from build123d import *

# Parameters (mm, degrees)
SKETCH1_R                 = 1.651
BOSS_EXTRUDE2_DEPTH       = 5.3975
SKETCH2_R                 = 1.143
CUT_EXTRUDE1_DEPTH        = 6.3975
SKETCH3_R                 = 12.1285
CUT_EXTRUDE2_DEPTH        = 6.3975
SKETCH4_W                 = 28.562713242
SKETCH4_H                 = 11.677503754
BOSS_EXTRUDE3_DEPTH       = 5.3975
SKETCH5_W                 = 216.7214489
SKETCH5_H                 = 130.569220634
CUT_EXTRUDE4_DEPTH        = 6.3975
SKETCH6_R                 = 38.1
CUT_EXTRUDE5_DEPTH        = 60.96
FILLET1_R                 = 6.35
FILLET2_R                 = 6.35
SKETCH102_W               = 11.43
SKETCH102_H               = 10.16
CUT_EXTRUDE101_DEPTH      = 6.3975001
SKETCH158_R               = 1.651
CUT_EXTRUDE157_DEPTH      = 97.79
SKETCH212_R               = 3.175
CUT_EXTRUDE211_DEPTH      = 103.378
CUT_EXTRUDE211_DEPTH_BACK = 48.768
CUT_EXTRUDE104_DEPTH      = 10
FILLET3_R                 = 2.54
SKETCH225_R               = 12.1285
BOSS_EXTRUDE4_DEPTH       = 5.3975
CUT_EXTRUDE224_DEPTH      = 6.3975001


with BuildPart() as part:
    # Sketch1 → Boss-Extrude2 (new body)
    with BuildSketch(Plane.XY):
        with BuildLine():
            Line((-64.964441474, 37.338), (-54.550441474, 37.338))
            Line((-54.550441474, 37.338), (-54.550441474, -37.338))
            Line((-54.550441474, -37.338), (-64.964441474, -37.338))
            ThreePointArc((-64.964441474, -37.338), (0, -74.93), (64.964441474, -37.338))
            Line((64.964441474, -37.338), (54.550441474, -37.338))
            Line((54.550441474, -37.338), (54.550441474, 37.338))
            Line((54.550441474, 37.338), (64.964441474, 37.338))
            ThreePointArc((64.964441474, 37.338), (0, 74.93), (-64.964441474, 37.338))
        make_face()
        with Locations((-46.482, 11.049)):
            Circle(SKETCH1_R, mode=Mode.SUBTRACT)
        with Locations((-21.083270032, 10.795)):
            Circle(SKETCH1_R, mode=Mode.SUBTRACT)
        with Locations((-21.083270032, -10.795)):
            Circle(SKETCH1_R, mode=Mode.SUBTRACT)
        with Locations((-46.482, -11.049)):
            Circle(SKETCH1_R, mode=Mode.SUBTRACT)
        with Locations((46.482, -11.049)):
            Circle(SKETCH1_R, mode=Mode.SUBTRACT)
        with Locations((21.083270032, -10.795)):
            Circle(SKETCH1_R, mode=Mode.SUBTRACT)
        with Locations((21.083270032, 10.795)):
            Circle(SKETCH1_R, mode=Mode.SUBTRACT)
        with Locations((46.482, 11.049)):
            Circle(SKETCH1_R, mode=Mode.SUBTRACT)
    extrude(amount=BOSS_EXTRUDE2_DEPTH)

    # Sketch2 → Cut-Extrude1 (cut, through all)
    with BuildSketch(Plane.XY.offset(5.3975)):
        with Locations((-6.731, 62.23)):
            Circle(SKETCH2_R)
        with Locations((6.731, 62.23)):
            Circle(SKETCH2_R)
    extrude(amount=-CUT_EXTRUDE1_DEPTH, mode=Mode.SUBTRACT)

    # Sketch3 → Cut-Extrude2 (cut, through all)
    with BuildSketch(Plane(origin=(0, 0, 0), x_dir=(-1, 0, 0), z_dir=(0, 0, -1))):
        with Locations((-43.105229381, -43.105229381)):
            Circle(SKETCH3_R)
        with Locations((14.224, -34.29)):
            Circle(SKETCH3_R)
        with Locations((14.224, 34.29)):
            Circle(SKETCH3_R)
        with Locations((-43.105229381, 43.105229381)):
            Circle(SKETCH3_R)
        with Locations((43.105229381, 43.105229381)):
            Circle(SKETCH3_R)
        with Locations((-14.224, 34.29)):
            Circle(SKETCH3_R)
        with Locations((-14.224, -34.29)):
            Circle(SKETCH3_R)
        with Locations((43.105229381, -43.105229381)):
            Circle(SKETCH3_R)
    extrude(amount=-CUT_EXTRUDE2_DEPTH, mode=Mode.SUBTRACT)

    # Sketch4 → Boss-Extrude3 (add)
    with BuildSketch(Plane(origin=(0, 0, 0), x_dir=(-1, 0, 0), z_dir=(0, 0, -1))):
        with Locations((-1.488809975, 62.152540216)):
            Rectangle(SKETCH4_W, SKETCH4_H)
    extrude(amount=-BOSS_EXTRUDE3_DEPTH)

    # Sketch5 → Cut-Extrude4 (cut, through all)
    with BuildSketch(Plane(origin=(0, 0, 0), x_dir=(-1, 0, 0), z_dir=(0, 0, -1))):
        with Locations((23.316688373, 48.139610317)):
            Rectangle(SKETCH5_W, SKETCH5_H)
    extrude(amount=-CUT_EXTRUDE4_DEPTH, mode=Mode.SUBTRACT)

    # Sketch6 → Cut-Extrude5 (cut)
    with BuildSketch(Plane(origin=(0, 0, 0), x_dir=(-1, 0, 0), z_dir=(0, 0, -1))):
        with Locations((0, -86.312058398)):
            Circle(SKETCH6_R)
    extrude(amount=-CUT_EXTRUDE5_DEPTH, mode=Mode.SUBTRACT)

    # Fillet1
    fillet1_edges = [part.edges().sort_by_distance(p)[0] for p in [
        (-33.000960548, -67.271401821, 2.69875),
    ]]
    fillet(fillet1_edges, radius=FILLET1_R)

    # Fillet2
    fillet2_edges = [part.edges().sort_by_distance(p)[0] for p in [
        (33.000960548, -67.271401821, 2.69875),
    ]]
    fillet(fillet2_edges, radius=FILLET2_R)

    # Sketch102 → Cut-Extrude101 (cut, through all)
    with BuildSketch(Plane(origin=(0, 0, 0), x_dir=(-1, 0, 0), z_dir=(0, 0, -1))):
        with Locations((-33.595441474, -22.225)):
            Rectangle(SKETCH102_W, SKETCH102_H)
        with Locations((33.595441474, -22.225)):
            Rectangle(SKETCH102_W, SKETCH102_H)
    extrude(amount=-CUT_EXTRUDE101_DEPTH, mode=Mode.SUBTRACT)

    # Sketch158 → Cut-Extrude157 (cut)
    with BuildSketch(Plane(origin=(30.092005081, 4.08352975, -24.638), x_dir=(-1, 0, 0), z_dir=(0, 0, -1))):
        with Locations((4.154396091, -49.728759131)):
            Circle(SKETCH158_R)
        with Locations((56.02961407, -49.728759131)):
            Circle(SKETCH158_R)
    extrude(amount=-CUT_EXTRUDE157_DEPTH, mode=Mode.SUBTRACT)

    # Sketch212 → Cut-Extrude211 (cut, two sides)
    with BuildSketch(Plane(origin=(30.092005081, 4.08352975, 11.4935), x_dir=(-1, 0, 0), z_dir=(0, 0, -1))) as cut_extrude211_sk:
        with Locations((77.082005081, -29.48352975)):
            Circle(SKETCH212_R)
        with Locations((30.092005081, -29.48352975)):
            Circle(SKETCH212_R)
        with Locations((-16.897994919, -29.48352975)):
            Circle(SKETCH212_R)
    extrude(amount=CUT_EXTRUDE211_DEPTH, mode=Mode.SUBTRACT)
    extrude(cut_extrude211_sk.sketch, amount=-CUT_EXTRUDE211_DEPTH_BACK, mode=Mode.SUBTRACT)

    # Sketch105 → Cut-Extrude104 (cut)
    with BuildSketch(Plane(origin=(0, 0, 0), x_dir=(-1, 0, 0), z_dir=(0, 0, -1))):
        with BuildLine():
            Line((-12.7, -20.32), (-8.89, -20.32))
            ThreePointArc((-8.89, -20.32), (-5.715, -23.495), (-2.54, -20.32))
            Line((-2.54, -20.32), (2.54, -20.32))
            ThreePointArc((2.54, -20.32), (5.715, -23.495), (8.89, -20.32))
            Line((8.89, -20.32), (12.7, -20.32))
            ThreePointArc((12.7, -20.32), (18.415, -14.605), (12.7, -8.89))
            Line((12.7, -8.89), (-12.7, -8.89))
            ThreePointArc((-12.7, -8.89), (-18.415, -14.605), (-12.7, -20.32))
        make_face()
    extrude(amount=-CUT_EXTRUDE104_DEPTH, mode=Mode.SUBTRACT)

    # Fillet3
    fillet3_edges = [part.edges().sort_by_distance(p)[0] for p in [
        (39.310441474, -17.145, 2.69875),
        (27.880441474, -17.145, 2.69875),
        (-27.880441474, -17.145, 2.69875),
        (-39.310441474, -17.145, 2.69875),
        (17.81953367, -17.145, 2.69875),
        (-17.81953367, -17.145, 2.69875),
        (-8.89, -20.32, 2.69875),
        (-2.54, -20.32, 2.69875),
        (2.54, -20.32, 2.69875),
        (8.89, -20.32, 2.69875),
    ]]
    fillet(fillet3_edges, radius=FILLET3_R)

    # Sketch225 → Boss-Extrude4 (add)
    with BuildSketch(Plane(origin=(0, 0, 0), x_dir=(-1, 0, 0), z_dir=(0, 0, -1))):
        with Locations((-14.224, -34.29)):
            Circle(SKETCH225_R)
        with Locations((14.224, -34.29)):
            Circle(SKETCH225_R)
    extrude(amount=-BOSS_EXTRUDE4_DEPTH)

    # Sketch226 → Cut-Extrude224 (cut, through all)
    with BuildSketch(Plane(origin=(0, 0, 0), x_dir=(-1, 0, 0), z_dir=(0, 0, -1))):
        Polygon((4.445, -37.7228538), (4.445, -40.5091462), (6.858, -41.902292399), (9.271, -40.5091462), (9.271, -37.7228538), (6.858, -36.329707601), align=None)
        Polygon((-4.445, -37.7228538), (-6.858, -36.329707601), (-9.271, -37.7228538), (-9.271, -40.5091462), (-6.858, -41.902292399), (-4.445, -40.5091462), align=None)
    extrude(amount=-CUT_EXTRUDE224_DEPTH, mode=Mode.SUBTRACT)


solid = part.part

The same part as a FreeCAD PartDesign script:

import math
import FreeCAD as App
import Part
import Sketcher
Q = App.Units.Quantity


def edges_at(feature, points):
    """Names of the edges that pass closest to the given points."""
    edges = feature.Shape.Edges
    near = lambda p: min(range(len(edges)), key=lambda i: edges[i].distToShape(Part.Vertex(*p))[0])
    return sorted({f"Edge{near(p) + 1}" for p in points})


def add_polygon(sketch, points):
    """Adds a closed chain of lines whose ends are joined by coincident constraints."""
    first, n = sketch.GeometryCount, len(points)
    for a, b in zip(points, points[1:] + points[:1]):
        sketch.addGeometry(Part.LineSegment(App.Vector(*a, 0), App.Vector(*b, 0)), False)
    for i in range(n):
        sketch.addConstraint(Sketcher.Constraint("Coincident", first + i, 2, first + (i + 1) % n, 1))

doc = App.newDocument("Part")
body = doc.addObject("PartDesign::Body", "Body")

# Sketch on XY plane
sketch1 = body.newObject("Sketcher::SketchObject", "Sketch")
sketch1.AttachmentSupport = (doc.getObject("XY_Plane"), [""])
sketch1.MapMode = "FlatFace"
sketch1.addGeometry(Part.LineSegment(App.Vector(-65, 37.3, 0), App.Vector(-54.6, 37.3, 0)), False)
sketch1.addGeometry(Part.LineSegment(App.Vector(-54.6, 37.3, 0), App.Vector(-54.6, -37.3, 0)), False)
sketch1.addGeometry(Part.LineSegment(App.Vector(-54.6, -37.3, 0), App.Vector(-65, -37.3, 0)), False)
sketch1.addGeometry(Part.ArcOfCircle(Part.Circle(App.Vector(0, 0, 0), App.Vector(0, 0, 1), 74.9), math.radians(-150), math.radians(-30)), False)
sketch1.addGeometry(Part.LineSegment(App.Vector(65, -37.3, 0), App.Vector(54.6, -37.3, 0)), False)
sketch1.addGeometry(Part.LineSegment(App.Vector(54.6, -37.3, 0), App.Vector(54.6, 37.3, 0)), False)
sketch1.addGeometry(Part.LineSegment(App.Vector(54.6, 37.3, 0), App.Vector(65, 37.3, 0)), False)
sketch1.addGeometry(Part.ArcOfCircle(Part.Circle(App.Vector(0, 0, 0), App.Vector(0, 0, 1), 74.9), math.radians(30), math.radians(150)), False)
sketch1.addGeometry(Part.Circle(App.Vector(-46.5, -11, 0), App.Vector(0, 0, 1), 1.7), False)
sketch1.addGeometry(Part.Circle(App.Vector(-21.1, -10.8, 0), App.Vector(0, 0, 1), 1.7), False)
sketch1.addGeometry(Part.Circle(App.Vector(21.1, -10.8, 0), App.Vector(0, 0, 1), 1.7), False)
sketch1.addGeometry(Part.Circle(App.Vector(46.5, -11, 0), App.Vector(0, 0, 1), 1.7), False)
sketch1.addGeometry(Part.Circle(App.Vector(-46.5, 11, 0), App.Vector(0, 0, 1), 1.7), False)
sketch1.addGeometry(Part.Circle(App.Vector(-21.1, 10.8, 0), App.Vector(0, 0, 1), 1.7), False)
sketch1.addGeometry(Part.Circle(App.Vector(21.1, 10.8, 0), App.Vector(0, 0, 1), 1.7), False)
sketch1.addGeometry(Part.Circle(App.Vector(46.5, 11, 0), App.Vector(0, 0, 1), 1.7), False)
sketch1.addConstraint(Sketcher.Constraint("Coincident", 0, 2, 1, 1))
sketch1.addConstraint(Sketcher.Constraint("Coincident", 1, 2, 2, 1))
sketch1.addConstraint(Sketcher.Constraint("Coincident", 2, 2, 3, 1))
sketch1.addConstraint(Sketcher.Constraint("Coincident", 3, 2, 4, 1))
sketch1.addConstraint(Sketcher.Constraint("Coincident", 4, 2, 5, 1))
sketch1.addConstraint(Sketcher.Constraint("Coincident", 5, 2, 6, 1))
sketch1.addConstraint(Sketcher.Constraint("Coincident", 6, 2, 7, 1))
sketch1.addConstraint(Sketcher.Constraint("Coincident", 7, 2, 0, 1))
sketch1.addConstraint(Sketcher.Constraint("Horizontal", 0))
sketch1.addConstraint(Sketcher.Constraint("Vertical", 1))
sketch1.addConstraint(Sketcher.Constraint("Horizontal", 2))
sketch1.addConstraint(Sketcher.Constraint("Horizontal", 4))
sketch1.addConstraint(Sketcher.Constraint("Vertical", 5))
sketch1.addConstraint(Sketcher.Constraint("Horizontal", 6))
sketch1.addConstraint(Sketcher.Constraint("Coincident", 3, 3, -1, 1))
sketch1.addConstraint(Sketcher.Constraint("Coincident", 7, 3, -1, 1))
sketch1.addConstraint(Sketcher.Constraint("Equal", 3, 7))
sketch1.addConstraint(Sketcher.Constraint("Equal", 8, 9))
sketch1.addConstraint(Sketcher.Constraint("Equal", 9, 10))
sketch1.addConstraint(Sketcher.Constraint("Equal", 10, 11))
sketch1.addConstraint(Sketcher.Constraint("Equal", 11, 12))
sketch1.addConstraint(Sketcher.Constraint("Equal", 12, 13))
sketch1.addConstraint(Sketcher.Constraint("Equal", 13, 14))
sketch1.addConstraint(Sketcher.Constraint("Equal", 14, 15))
sketch1.addConstraint(Sketcher.Constraint("Symmetric", 11, 3, 12, 3, -1, 1))
sketch1.addConstraint(Sketcher.Constraint("Symmetric", 10, 3, 13, 3, -1, 1))
sketch1.addConstraint(Sketcher.Constraint("Symmetric", 9, 3, 14, 3, -1, 1))
sketch1.addConstraint(Sketcher.Constraint("Symmetric", 8, 3, 15, 3, -1, 1))
sketch1.addConstraint(Sketcher.Constraint("Symmetric", 0, 2, 4, 2, -1, 1))
sketch1.addConstraint(Sketcher.Constraint("Symmetric", 9, 3, 10, 3, -2))
sketch1.addConstraint(Sketcher.Constraint("Symmetric", 8, 3, 11, 3, -2))
sketch1.addConstraint(Sketcher.Constraint("Horizontal", 2, 2, 3, 2))
sketch1.addConstraint(Sketcher.Constraint("Horizontal", 0, 2, 5, 2))
sketch1.addConstraint(Sketcher.Constraint("Diameter", 8, Q("0.13 in")))
sketch1.addConstraint(Sketcher.Constraint("Radius", 3, Q("2.95 in")))
sketch1.addConstraint(Sketcher.Constraint("DistanceX", 0, 1, 0, 2, Q("0.41 in")))
sketch1.addConstraint(Sketcher.Constraint("DistanceY", 1, 2, 1, 1, Q("2.94 in")))
sketch1.addConstraint(Sketcher.Constraint("DistanceX", 8, 3, -1, 1, Q("1.83 in")))
sketch1.addConstraint(Sketcher.Constraint("DistanceY", 8, 3, 9, 3, Q("0.01 in")))
sketch1.addConstraint(Sketcher.Constraint("DistanceY", 8, 3, 12, 3, Q("0.87 in")))
sketch1.addConstraint(Sketcher.Constraint("DistanceX", 9, 3, 10, 3, Q("1.6601 in")))
pad1 = body.newObject("PartDesign::Pad", "Pad")
pad1.Profile = sketch1
pad1.Length = Q("0.2125 in")

# Sketch on XY plane
sketch2 = body.newObject("Sketcher::SketchObject", "Sketch001")
sketch2.AttachmentSupport = (doc.getObject("XY_Plane"), [""])
sketch2.MapMode = "FlatFace"
sketch2.AttachmentOffset = App.Placement(App.Vector(0, 0, 0.2125 * 25.4), App.Rotation())
sketch2.addGeometry(Part.Circle(App.Vector(-6.7, 62.2, 0), App.Vector(0, 0, 1), 1.1), False)
sketch2.addGeometry(Part.Circle(App.Vector(6.7, 62.2, 0), App.Vector(0, 0, 1), 1.1), False)
sketch2.addConstraint(Sketcher.Constraint("Equal", 0, 1))
sketch2.addConstraint(Sketcher.Constraint("Symmetric", 0, 3, 1, 3, -2))
sketch2.addConstraint(Sketcher.Constraint("Diameter", 0, Q("0.09 in")))
sketch2.addConstraint(Sketcher.Constraint("DistanceY", -1, 1, 0, 3, Q("2.45 in")))
sketch2.addConstraint(Sketcher.Constraint("DistanceX", 0, 3, 1, 3, Q("0.53 in")))
pocket1 = body.newObject("PartDesign::Pocket", "Pocket")
pocket1.Profile = sketch2
pocket1.Type = "ThroughAll"

# Sketch on XY plane
sketch3 = body.newObject("Sketcher::SketchObject", "Sketch002")
sketch3.AttachmentSupport = (doc.getObject("XY_Plane"), [""])
sketch3.MapMode = "FlatFace"
sketch3.addGeometry(Part.Circle(App.Vector(43, -43, 0), App.Vector(0, 0, 1), 12), False)
sketch3.addGeometry(Part.Circle(App.Vector(-14, -34, 0), App.Vector(0, 0, 1), 12), False)
sketch3.addGeometry(Part.Circle(App.Vector(-14, 34, 0), App.Vector(0, 0, 1), 12), False)
sketch3.addGeometry(Part.Circle(App.Vector(43, 43, 0), App.Vector(0, 0, 1), 12), False)
sketch3.addGeometry(Part.Circle(App.Vector(-43, 43, 0), App.Vector(0, 0, 1), 12), False)
sketch3.addGeometry(Part.Circle(App.Vector(14, 34, 0), App.Vector(0, 0, 1), 12), False)
sketch3.addGeometry(Part.Circle(App.Vector(14, -34, 0), App.Vector(0, 0, 1), 12), False)
sketch3.addGeometry(Part.Circle(App.Vector(-43, -43, 0), App.Vector(0, 0, 1), 12), False)
sketch3.addConstraint(Sketcher.Constraint("Equal", 0, 1))
sketch3.addConstraint(Sketcher.Constraint("Equal", 1, 2))
sketch3.addConstraint(Sketcher.Constraint("Equal", 2, 3))
sketch3.addConstraint(Sketcher.Constraint("Equal", 3, 4))
sketch3.addConstraint(Sketcher.Constraint("Equal", 4, 5))
sketch3.addConstraint(Sketcher.Constraint("Equal", 5, 6))
sketch3.addConstraint(Sketcher.Constraint("Equal", 6, 7))
sketch3.addConstraint(Sketcher.Constraint("Symmetric", 0, 3, 4, 3, -1, 1))
sketch3.addConstraint(Sketcher.Constraint("Symmetric", 1, 3, 5, 3, -1, 1))
sketch3.addConstraint(Sketcher.Constraint("Symmetric", 2, 3, 6, 3, -1, 1))
sketch3.addConstraint(Sketcher.Constraint("Symmetric", 3, 3, 7, 3, -1, 1))
sketch3.addConstraint(Sketcher.Constraint("Symmetric", 3, 3, 4, 3, -2))
sketch3.addConstraint(Sketcher.Constraint("Symmetric", 2, 3, 5, 3, -2))
sketch3.addConstraint(Sketcher.Constraint("Diameter", 0, Q("0.955 in")))
sketch3.addConstraint(Sketcher.Constraint("DistanceY", 1, 3, 2, 3, Q("2.7 in")))
sketch3.addConstraint(Sketcher.Constraint("DistanceX", 1, 3, -1, 1, Q("0.56 in")))
sketch3.addConstraint(Sketcher.Constraint("DistanceX", -1, 1, 0, 3, Q("43.105229 mm")))
sketch3.addConstraint(Sketcher.Constraint("DistanceY", 0, 3, -1, 1, Q("43.105229 mm")))
pocket2 = body.newObject("PartDesign::Pocket", "Pocket001")
pocket2.Profile = sketch3
pocket2.Type = "ThroughAll"
pocket2.Reversed = True

# Sketch on XY plane
sketch4 = body.newObject("Sketcher::SketchObject", "Sketch003")
sketch4.AttachmentSupport = (doc.getObject("XY_Plane"), [""])
sketch4.MapMode = "FlatFace"
add_polygon(sketch4, [(16, 68), (16, 56), (-13, 56), (-13, 68)])  # lines 0-3
sketch4.addConstraint(Sketcher.Constraint("Vertical", 0))
sketch4.addConstraint(Sketcher.Constraint("Horizontal", 1))
sketch4.addConstraint(Sketcher.Constraint("Vertical", 2))
sketch4.addConstraint(Sketcher.Constraint("Horizontal", 3))
sketch4.addConstraint(Sketcher.Constraint("DistanceX", 1, 2, 1, 1, Q("28.562713 mm")))
sketch4.addConstraint(Sketcher.Constraint("DistanceY", 0, 2, 0, 1, Q("11.677504 mm")))
sketch4.addConstraint(Sketcher.Constraint("DistanceY", -1, 1, 0, 2, Q("56.313788 mm")))
sketch4.addConstraint(Sketcher.Constraint("DistanceX", -1, 1, 0, 2, Q("15.770167 mm")))
pad2 = body.newObject("PartDesign::Pad", "Pad001")
pad2.Profile = sketch4
pad2.Length = Q("0.2125 in")

# Sketch on XY plane
sketch5 = body.newObject("Sketcher::SketchObject", "Sketch004")
sketch5.AttachmentSupport = (doc.getObject("XY_Plane"), [""])
sketch5.MapMode = "FlatFace"
add_polygon(sketch5, [(85, 113), (85, -17), (-132, -17), (-132, 113)])  # lines 0-3
sketch5.addConstraint(Sketcher.Constraint("Vertical", 0))
sketch5.addConstraint(Sketcher.Constraint("Horizontal", 1))
sketch5.addConstraint(Sketcher.Constraint("Vertical", 2))
sketch5.addConstraint(Sketcher.Constraint("Horizontal", 3))
sketch5.addConstraint(Sketcher.Constraint("DistanceY", 0, 2, -1, 1, Q("0.675 in")))
sketch5.addConstraint(Sketcher.Constraint("DistanceX", 1, 2, 1, 1, Q("216.721449 mm")))
sketch5.addConstraint(Sketcher.Constraint("DistanceY", 0, 2, 0, 1, Q("130.569221 mm")))
sketch5.addConstraint(Sketcher.Constraint("DistanceX", -1, 1, 0, 2, Q("85.044036 mm")))
pocket3 = body.newObject("PartDesign::Pocket", "Pocket002")
pocket3.Profile = sketch5
pocket3.Type = "ThroughAll"
pocket3.Reversed = True

# Sketch on XY plane
sketch6 = body.newObject("Sketcher::SketchObject", "Sketch005")
sketch6.AttachmentSupport = (doc.getObject("XY_Plane"), [""])
sketch6.MapMode = "FlatFace"
sketch6.addGeometry(Part.Circle(App.Vector(0, -86, 0), App.Vector(0, 0, 1), 38), False)
sketch6.addConstraint(Sketcher.Constraint("PointOnObject", 0, 3, -2))
sketch6.addConstraint(Sketcher.Constraint("Diameter", 0, Q("3 in")))
sketch6.addConstraint(Sketcher.Constraint("DistanceY", 0, 3, -1, 1, Q("86.312058 mm")))
pocket4 = body.newObject("PartDesign::Pocket", "Pocket003")
pocket4.Profile = sketch6
pocket4.Length = Q("2.4 in")
pocket4.Reversed = True
doc.recompute()

fillet = body.newObject("PartDesign::Fillet", "Fillet")
fillet.Base = (pocket4, edges_at(pocket4, [(-33.001, -67.271, 2.699)]))
fillet.Radius = Q("0.25 in")
doc.recompute()

fillet2 = body.newObject("PartDesign::Fillet", "Fillet001")
fillet2.Base = (fillet, edges_at(fillet, [(33.001, -67.271, 2.699)]))
fillet2.Radius = Q("0.25 in")

# Sketch on XY plane
sketch7 = body.newObject("Sketcher::SketchObject", "Sketch006")
sketch7.AttachmentSupport = (doc.getObject("XY_Plane"), [""])
sketch7.MapMode = "FlatFace"
add_polygon(sketch7, [(39, -17), (39, -27), (28, -27), (28, -17)])  # lines 0-3
add_polygon(sketch7, [(-28, -17), (-28, -27), (-39, -27), (-39, -17)])  # lines 4-7
sketch7.addConstraint(Sketcher.Constraint("Vertical", 0))
sketch7.addConstraint(Sketcher.Constraint("Horizontal", 1))
sketch7.addConstraint(Sketcher.Constraint("Vertical", 2))
sketch7.addConstraint(Sketcher.Constraint("Horizontal", 3))
sketch7.addConstraint(Sketcher.Constraint("Vertical", 4))
sketch7.addConstraint(Sketcher.Constraint("Horizontal", 5))
sketch7.addConstraint(Sketcher.Constraint("Vertical", 6))
sketch7.addConstraint(Sketcher.Constraint("Horizontal", 7))
sketch7.addConstraint(Sketcher.Constraint("Symmetric", 1, 2, 4, 2, -2))
sketch7.addConstraint(Sketcher.Constraint("Symmetric", 3, 2, 6, 2, -2))
sketch7.addConstraint(Sketcher.Constraint("DistanceY", 0, 2, 0, 1, Q("0.4 in")))
sketch7.addConstraint(Sketcher.Constraint("DistanceX", 1, 2, 1, 1, Q("0.45 in")))
sketch7.addConstraint(Sketcher.Constraint("DistanceY", 0, 2, -1, 1, Q("1.075 in")))
sketch7.addConstraint(Sketcher.Constraint("DistanceX", -1, 1, 0, 2, Q("39.310441 mm")))
pocket5 = body.newObject("PartDesign::Pocket", "Pocket004")
pocket5.Profile = sketch7
pocket5.Type = "ThroughAll"
pocket5.Reversed = True

# Sketch on XY plane
sketch8 = body.newObject("Sketcher::SketchObject", "Sketch007")
sketch8.AttachmentSupport = (doc.getObject("XY_Plane"), [""])
sketch8.MapMode = "FlatFace"
sketch8.AttachmentOffset = App.Placement(App.Vector(0, 0, -0.97 * 25.4), App.Rotation())
sketch8.addGeometry(Part.Circle(App.Vector(25.9, -45.6, 0), App.Vector(0, 0, 1), 1.7), False)
sketch8.addGeometry(Part.Circle(App.Vector(-25.9, -45.6, 0), App.Vector(0, 0, 1), 1.7), False)
sketch8.addConstraint(Sketcher.Constraint("Equal", 0, 1))
sketch8.addConstraint(Sketcher.Constraint("Symmetric", 0, 3, 1, 3, -2))
sketch8.addConstraint(Sketcher.Constraint("Diameter", 0, Q("0.13 in")))
sketch8.addConstraint(Sketcher.Constraint("DistanceX", -1, 1, 0, 3, Q("25.937609 mm")))
sketch8.addConstraint(Sketcher.Constraint("DistanceY", 0, 3, -1, 1, Q("45.645229 mm")))
pocket6 = body.newObject("PartDesign::Pocket", "Pocket005")
pocket6.Profile = sketch8
pocket6.Length = Q("3.85 in")
pocket6.Reversed = True

# Sketch on XY plane
sketch9 = body.newObject("Sketcher::SketchObject", "Sketch008")
sketch9.AttachmentSupport = (doc.getObject("XY_Plane"), [""])
sketch9.MapMode = "FlatFace"
sketch9.AttachmentOffset = App.Placement(App.Vector(0, 0, 0.4525 * 25.4), App.Rotation())
sketch9.addGeometry(Part.Circle(App.Vector(-47, -25.4, 0), App.Vector(0, 0, 1), 3.2), False)
sketch9.addGeometry(Part.Circle(App.Vector(0, -25.4, 0), App.Vector(0, 0, 1), 3.2), False)
sketch9.addGeometry(Part.Circle(App.Vector(47, -25.4, 0), App.Vector(0, 0, 1), 3.2), False)
sketch9.addConstraint(Sketcher.Constraint("Equal", 0, 1))
sketch9.addConstraint(Sketcher.Constraint("Equal", 1, 2))
sketch9.addConstraint(Sketcher.Constraint("Symmetric", 0, 3, 2, 3, -2))
sketch9.addConstraint(Sketcher.Constraint("PointOnObject", 1, 3, -2))
sketch9.addConstraint(Sketcher.Constraint("Horizontal", 0, 3, 1, 3))
sketch9.addConstraint(Sketcher.Constraint("Diameter", 0, Q("0.25 in")))
sketch9.addConstraint(Sketcher.Constraint("DistanceY", 0, 3, -1, 1, Q("1 in")))
sketch9.addConstraint(Sketcher.Constraint("DistanceX", 0, 3, 2, 3, Q("3.7 in")))
pocket7 = body.newObject("PartDesign::Pocket", "Pocket006")
pocket7.Profile = sketch9
pocket7.Type = "ThroughAll"
pocket7.Midplane = True

# Sketch on XY plane
sketch10 = body.newObject("Sketcher::SketchObject", "Sketch009")
sketch10.AttachmentSupport = (doc.getObject("XY_Plane"), [""])
sketch10.MapMode = "FlatFace"
sketch10.addGeometry(Part.LineSegment(App.Vector(12.7, -20.3, 0), App.Vector(8.9, -20.3, 0)), False)
sketch10.addGeometry(Part.ArcOfCircle(Part.Circle(App.Vector(5.7, -20.3, 0), App.Vector(0, 0, 1), 3.2), math.radians(180), math.radians(360)), False)
sketch10.addGeometry(Part.LineSegment(App.Vector(2.5, -20.3, 0), App.Vector(-2.5, -20.3, 0)), False)
sketch10.addGeometry(Part.ArcOfCircle(Part.Circle(App.Vector(-5.7, -20.3, 0), App.Vector(0, 0, 1), 3.2), math.radians(180), math.radians(360)), False)
sketch10.addGeometry(Part.LineSegment(App.Vector(-8.9, -20.3, 0), App.Vector(-12.7, -20.3, 0)), False)
sketch10.addGeometry(Part.ArcOfCircle(Part.Circle(App.Vector(-12.7, -14.6, 0), App.Vector(0, 0, 1), 5.7), math.radians(90), math.radians(270)), False)
sketch10.addGeometry(Part.LineSegment(App.Vector(-12.7, -8.9, 0), App.Vector(12.7, -8.9, 0)), False)
sketch10.addGeometry(Part.ArcOfCircle(Part.Circle(App.Vector(12.7, -14.6, 0), App.Vector(0, 0, 1), 5.7), math.radians(-90), math.radians(90)), False)
sketch10.addConstraint(Sketcher.Constraint("Coincident", 0, 2, 1, 2))
sketch10.addConstraint(Sketcher.Constraint("Coincident", 1, 1, 2, 1))
sketch10.addConstraint(Sketcher.Constraint("Coincident", 2, 2, 3, 2))
sketch10.addConstraint(Sketcher.Constraint("Coincident", 3, 1, 4, 1))
sketch10.addConstraint(Sketcher.Constraint("Tangent", 4, 2, 5, 2))
sketch10.addConstraint(Sketcher.Constraint("Tangent", 5, 1, 6, 1))
sketch10.addConstraint(Sketcher.Constraint("Tangent", 6, 2, 7, 2))
sketch10.addConstraint(Sketcher.Constraint("Tangent", 7, 1, 0, 1))
sketch10.addConstraint(Sketcher.Constraint("Horizontal", 0))
sketch10.addConstraint(Sketcher.Constraint("Horizontal", 2))
sketch10.addConstraint(Sketcher.Constraint("Horizontal", 4))
sketch10.addConstraint(Sketcher.Constraint("Horizontal", 6))
sketch10.addConstraint(Sketcher.Constraint("Equal", 1, 3))
sketch10.addConstraint(Sketcher.Constraint("Equal", 5, 7))
sketch10.addConstraint(Sketcher.Constraint("Symmetric", 1, 3, 3, 3, -2))
sketch10.addConstraint(Sketcher.Constraint("Horizontal", 3, 3, 0, 2))
sketch10.addConstraint(Sketcher.Constraint("Horizontal", 0, 2, 1, 1))
sketch10.addConstraint(Sketcher.Constraint("Equal", 0, 4))
sketch10.addConstraint(Sketcher.Constraint("DistanceX", 6, 1, 6, 2, Q("1 in")))
sketch10.addConstraint(Sketcher.Constraint("DistanceX", 2, 2, 2, 1, Q("0.2 in")))
sketch10.addConstraint(Sketcher.Constraint("Radius", 1, Q("0.125 in")))
sketch10.addConstraint(Sketcher.Constraint("Radius", 5, Q("0.225 in")))
sketch10.addConstraint(Sketcher.Constraint("DistanceY", 1, 3, -1, 1, Q("0.8 in")))
pocket8 = body.newObject("PartDesign::Pocket", "Pocket007")
pocket8.Profile = sketch10
pocket8.Length = 10
pocket8.Reversed = True
doc.recompute()

fillet3 = body.newObject("PartDesign::Fillet", "Fillet002")
fillet3.Base = (pocket8, edges_at(pocket8, [
    (39.31, -17.145, 2.699),
    (27.88, -17.145, 2.699),
    (-27.88, -17.145, 2.699),
    (-39.31, -17.145, 2.699),
    (17.82, -17.145, 2.699),
    (-17.82, -17.145, 2.699),
    (-8.89, -20.32, 2.699),
    (-2.54, -20.32, 2.699),
    (2.54, -20.32, 2.699),
    (8.89, -20.32, 2.699),
]))
fillet3.Radius = Q("0.1 in")

# Sketch on XY plane
sketch11 = body.newObject("Sketcher::SketchObject", "Sketch010")
sketch11.AttachmentSupport = (doc.getObject("XY_Plane"), [""])
sketch11.MapMode = "FlatFace"
sketch11.addGeometry(Part.Circle(App.Vector(14, -34, 0), App.Vector(0, 0, 1), 12), False)
sketch11.addGeometry(Part.Circle(App.Vector(-14, -34, 0), App.Vector(0, 0, 1), 12), False)
sketch11.addConstraint(Sketcher.Constraint("Equal", 0, 1))
sketch11.addConstraint(Sketcher.Constraint("Symmetric", 0, 3, 1, 3, -2))
sketch11.addConstraint(Sketcher.Constraint("Diameter", 0, Q("0.955 in")))
sketch11.addConstraint(Sketcher.Constraint("DistanceX", -1, 1, 0, 3, Q("0.56 in")))
sketch11.addConstraint(Sketcher.Constraint("DistanceY", 0, 3, -1, 1, Q("1.35 in")))
pad3 = body.newObject("PartDesign::Pad", "Pad002")
pad3.Profile = sketch11
pad3.Length = Q("0.2125 in")

# Sketch on XY plane
sketch12 = body.newObject("Sketcher::SketchObject", "Sketch011")
sketch12.AttachmentSupport = (doc.getObject("XY_Plane"), [""])
sketch12.MapMode = "FlatFace"
add_polygon(sketch12, [(-4.4, -37.7), (-4.4, -40.5), (-6.9, -41.9), (-9.3, -40.5), (-9.3, -37.7), (-6.9, -36.3)])  # lines 0-5
add_polygon(sketch12, [(4.4, -37.7), (6.9, -36.3), (9.3, -37.7), (9.3, -40.5), (6.9, -41.9), (4.4, -40.5)])  # lines 6-11
sketch12.addConstraint(Sketcher.Constraint("Vertical", 0))
sketch12.addConstraint(Sketcher.Constraint("Vertical", 3))
sketch12.addConstraint(Sketcher.Constraint("Vertical", 8))
sketch12.addConstraint(Sketcher.Constraint("Vertical", 11))
sketch12.addConstraint(Sketcher.Constraint("Symmetric", 4, 2, 6, 2, -2))
sketch12.addConstraint(Sketcher.Constraint("Symmetric", 3, 2, 7, 2, -2))
sketch12.addConstraint(Sketcher.Constraint("Symmetric", 1, 2, 9, 2, -2))
sketch12.addConstraint(Sketcher.Constraint("Symmetric", 0, 2, 10, 2, -2))
sketch12.addConstraint(Sketcher.Constraint("Parallel", 1, 4))
sketch12.addConstraint(Sketcher.Constraint("Parallel", 2, 5))
sketch12.addConstraint(Sketcher.Constraint("Parallel", 4, 6))
sketch12.addConstraint(Sketcher.Constraint("Parallel", 5, 7))
sketch12.addConstraint(Sketcher.Constraint("Parallel", 6, 9))
sketch12.addConstraint(Sketcher.Constraint("Horizontal", 0, 2, 2, 2))
sketch12.addConstraint(Sketcher.Constraint("Horizontal", 3, 2, 5, 2))
sketch12.addConstraint(Sketcher.Constraint("Angle", 1, Q("-150 deg")))
sketch12.addConstraint(Sketcher.Constraint("DistanceX", 1, 2, -1, 1, Q("0.27 in")))
sketch12.addConstraint(Sketcher.Constraint("DistanceX", 2, 2, 0, 2, Q("0.19 in")))
sketch12.addConstraint(Sketcher.Constraint("DistanceY", 0, 2, 0, 1, Q("2.786292 mm")))
sketch12.addConstraint(Sketcher.Constraint("DistanceY", 0, 2, -1, 1, Q("40.509146 mm")))
pocket9 = body.newObject("PartDesign::Pocket", "Pocket008")
pocket9.Profile = sketch12
pocket9.Type = "ThroughAll"
pocket9.Reversed = True

doc.recompute()
